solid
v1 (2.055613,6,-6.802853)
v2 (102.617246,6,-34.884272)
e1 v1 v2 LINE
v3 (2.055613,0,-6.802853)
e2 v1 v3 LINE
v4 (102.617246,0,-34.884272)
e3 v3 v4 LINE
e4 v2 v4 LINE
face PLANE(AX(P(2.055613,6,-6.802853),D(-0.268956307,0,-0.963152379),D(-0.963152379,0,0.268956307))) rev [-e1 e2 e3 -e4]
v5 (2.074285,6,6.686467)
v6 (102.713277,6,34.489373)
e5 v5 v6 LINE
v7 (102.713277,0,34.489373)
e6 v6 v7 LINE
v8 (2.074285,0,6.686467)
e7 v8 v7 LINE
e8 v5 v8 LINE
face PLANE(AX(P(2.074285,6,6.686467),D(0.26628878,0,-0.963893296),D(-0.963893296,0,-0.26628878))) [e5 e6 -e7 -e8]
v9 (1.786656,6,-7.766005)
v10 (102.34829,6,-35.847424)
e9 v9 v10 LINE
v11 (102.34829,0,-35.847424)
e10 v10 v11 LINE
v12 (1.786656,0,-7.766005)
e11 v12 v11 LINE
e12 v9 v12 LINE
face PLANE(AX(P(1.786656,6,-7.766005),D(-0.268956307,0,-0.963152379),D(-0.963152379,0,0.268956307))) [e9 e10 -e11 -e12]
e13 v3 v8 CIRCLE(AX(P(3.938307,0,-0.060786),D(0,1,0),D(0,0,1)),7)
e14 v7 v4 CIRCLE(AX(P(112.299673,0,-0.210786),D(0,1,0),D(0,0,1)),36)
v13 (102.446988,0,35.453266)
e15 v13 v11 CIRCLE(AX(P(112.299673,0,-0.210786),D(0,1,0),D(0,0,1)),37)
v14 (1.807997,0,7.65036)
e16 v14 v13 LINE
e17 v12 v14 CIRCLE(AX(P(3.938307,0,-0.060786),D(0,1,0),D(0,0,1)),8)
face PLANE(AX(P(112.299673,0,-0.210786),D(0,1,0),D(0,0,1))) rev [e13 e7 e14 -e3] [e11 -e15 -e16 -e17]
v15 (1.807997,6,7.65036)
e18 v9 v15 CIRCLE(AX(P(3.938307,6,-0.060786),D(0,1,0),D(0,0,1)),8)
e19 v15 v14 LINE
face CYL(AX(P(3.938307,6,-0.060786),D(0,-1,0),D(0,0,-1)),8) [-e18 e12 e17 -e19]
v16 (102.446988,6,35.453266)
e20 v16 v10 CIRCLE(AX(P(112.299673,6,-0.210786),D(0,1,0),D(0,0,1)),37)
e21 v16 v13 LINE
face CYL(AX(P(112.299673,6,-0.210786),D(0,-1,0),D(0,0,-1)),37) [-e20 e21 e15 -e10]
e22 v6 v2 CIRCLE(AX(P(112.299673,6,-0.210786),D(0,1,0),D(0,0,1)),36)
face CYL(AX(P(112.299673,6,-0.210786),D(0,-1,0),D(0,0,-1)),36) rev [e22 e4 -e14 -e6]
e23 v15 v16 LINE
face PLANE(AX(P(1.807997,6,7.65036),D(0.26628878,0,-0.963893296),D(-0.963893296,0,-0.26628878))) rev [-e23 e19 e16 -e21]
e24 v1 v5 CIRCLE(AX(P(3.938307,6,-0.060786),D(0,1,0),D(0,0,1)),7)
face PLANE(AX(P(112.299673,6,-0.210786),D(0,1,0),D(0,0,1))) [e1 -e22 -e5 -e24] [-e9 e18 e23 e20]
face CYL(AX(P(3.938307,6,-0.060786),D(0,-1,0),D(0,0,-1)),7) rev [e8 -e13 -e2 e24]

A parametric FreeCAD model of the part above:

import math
import FreeCAD as App
import Part
import Sketcher

doc = App.newDocument("Part")
body = doc.addObject("PartDesign::Body", "Body")

sketch1 = body.newObject("Sketcher::SketchObject", "Sketch")
sketch1.AttachmentSupport = (doc.getObject("XZ_Plane"), [""])
sketch1.MapMode = "FlatFace"
sketch1.addGeometry([
    Part.LineSegment(App.Vector(1.807997, 7.65036, 0), App.Vector(102.446988, 35.453266, 0)),
    Part.ArcOfCircle(Part.Circle(App.Vector(112.299673, -0.210786, 0), App.Vector(0, 0, 1), 37), math.radians(-105.60217), math.radians(105.443546)),
    Part.LineSegment(App.Vector(102.34829, -35.847424, 0), App.Vector(1.786656, -7.766005, 0)),
    Part.ArcOfCircle(Part.Circle(App.Vector(3.938307, -0.060786, 0), App.Vector(0, 0, 1), 8), math.radians(105.443546), math.radians(254.397829)),
    Part.LineSegment(App.Vector(102.713277, 34.489373, 0), App.Vector(2.074285, 6.686467, 0)),
    Part.ArcOfCircle(Part.Circle(App.Vector(3.938307, -0.060786, 0), App.Vector(0, 0, 1), 7), math.radians(105.443546), math.radians(254.39783)),
    Part.LineSegment(App.Vector(2.055613, -6.802853, 0), App.Vector(102.617246, -34.884272, 0)),
    Part.ArcOfCircle(Part.Circle(App.Vector(112.299673, -0.210786, 0), App.Vector(0, 0, 1), 36), math.radians(-105.602171), math.radians(105.443546)),
], False)
sketch1.addConstraint([
    Sketcher.Constraint("Tangent", 0, 2, 1, 2),
    Sketcher.Constraint("Tangent", 1, 1, 2, 1),
    Sketcher.Constraint("Tangent", 2, 2, 3, 2),
    Sketcher.Constraint("Tangent", 3, 1, 0, 1),
    Sketcher.Constraint("Tangent", 4, 2, 5, 1),
    Sketcher.Constraint("Tangent", 5, 2, 6, 1),
    Sketcher.Constraint("Tangent", 6, 2, 7, 1),
    Sketcher.Constraint("Tangent", 7, 2, 4, 1),
    Sketcher.Constraint("Coincident", 5, 3, 3, 3),
    Sketcher.Constraint("Coincident", 7, 3, 1, 3),
    Sketcher.Constraint("Parallel", 0, 4),
    Sketcher.Constraint("Radius", 1, 37.0),
    Sketcher.Constraint("Radius", 3, 8.0),
    Sketcher.Constraint("Radius", 5, 7.0),
    Sketcher.Constraint("DistanceY", 1, 3, 3, 3, 0.15),
    Sketcher.Constraint("DistanceY", 4, 2, 0, 2, 28.766799),
    Sketcher.Constraint("DistanceX", -1, 1, 0, 2, 102.446988),
    Sketcher.Constraint("DistanceY", -1, 1, 3, 1, 7.65036),
])
pad1 = body.newObject("PartDesign::Pad", "Pad")
pad1.Profile = sketch1
pad1.Length = 6
pad1.Reversed = True

doc.recompute()
